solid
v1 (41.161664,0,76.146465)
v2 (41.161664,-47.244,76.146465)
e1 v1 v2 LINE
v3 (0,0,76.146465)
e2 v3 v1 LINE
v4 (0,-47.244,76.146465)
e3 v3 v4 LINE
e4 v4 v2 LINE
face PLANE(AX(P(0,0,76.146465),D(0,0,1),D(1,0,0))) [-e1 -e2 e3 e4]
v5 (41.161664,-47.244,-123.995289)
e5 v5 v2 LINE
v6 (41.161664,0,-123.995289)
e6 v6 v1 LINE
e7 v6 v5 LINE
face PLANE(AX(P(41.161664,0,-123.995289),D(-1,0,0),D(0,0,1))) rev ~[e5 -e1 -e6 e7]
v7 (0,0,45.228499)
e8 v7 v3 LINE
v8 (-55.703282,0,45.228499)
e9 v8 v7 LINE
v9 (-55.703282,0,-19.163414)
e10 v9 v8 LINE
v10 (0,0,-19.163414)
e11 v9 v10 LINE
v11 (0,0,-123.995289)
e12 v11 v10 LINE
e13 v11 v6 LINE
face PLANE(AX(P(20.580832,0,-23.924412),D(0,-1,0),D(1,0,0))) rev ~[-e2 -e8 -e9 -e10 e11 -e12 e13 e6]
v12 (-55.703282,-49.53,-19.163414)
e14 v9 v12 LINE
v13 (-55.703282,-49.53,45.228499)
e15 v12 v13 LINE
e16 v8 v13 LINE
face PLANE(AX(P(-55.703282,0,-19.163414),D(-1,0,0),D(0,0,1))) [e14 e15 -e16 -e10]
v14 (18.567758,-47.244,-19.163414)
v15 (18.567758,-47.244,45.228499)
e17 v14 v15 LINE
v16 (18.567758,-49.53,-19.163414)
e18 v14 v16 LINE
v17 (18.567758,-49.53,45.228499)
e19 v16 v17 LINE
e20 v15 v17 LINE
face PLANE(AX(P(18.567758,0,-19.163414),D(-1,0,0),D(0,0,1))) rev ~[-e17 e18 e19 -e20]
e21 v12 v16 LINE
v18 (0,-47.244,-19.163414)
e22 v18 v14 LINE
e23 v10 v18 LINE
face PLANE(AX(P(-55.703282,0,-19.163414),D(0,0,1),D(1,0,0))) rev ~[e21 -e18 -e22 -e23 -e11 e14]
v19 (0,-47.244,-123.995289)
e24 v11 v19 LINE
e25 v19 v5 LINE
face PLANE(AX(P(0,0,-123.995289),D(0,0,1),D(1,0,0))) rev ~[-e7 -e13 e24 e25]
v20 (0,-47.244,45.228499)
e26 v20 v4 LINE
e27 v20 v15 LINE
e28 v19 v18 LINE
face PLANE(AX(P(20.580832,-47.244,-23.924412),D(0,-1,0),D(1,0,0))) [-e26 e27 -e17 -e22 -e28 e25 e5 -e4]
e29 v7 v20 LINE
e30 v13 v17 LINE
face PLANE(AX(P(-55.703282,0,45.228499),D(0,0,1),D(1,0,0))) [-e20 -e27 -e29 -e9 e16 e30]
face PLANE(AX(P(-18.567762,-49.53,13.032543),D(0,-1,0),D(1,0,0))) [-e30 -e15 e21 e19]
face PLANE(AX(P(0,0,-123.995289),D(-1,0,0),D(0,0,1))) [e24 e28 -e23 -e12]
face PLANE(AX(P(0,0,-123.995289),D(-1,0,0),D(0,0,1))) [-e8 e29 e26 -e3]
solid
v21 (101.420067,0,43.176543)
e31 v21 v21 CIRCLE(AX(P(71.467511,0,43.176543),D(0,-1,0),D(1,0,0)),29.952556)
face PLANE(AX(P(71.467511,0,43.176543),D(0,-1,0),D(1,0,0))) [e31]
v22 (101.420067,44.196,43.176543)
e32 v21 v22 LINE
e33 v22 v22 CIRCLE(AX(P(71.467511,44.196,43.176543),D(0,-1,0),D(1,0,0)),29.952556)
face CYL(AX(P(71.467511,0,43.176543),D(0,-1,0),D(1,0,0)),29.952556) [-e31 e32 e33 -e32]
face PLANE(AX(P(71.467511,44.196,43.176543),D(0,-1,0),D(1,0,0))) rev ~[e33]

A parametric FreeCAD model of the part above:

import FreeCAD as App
import Part
import Sketcher

V = App.Vector
Q = App.Units.Quantity

doc = App.newDocument("Part")
body = doc.addObject("PartDesign::Body", "Body")

sketch1 = body.newObject("Sketcher::SketchObject", "Sketch")
sketch1.AttachmentSupport = (doc.getObject("XZ_Plane"), [""])
sketch1.MapMode = "FlatFace"
sketch1.addGeometry(Part.LineSegment(V(-56, 45, 0), V(-56, -19, 0)), False)
sketch1.addGeometry(Part.LineSegment(V(-56, -19, 0), V(19, -19, 0)), False)
sketch1.addGeometry(Part.LineSegment(V(19, -19, 0), V(19, 45, 0)), False)
sketch1.addGeometry(Part.LineSegment(V(19, 45, 0), V(-56, 45, 0)), False)
sketch1.addConstraint(Sketcher.Constraint("Coincident", 0, 2, 1, 1))
sketch1.addConstraint(Sketcher.Constraint("Coincident", 1, 2, 2, 1))
sketch1.addConstraint(Sketcher.Constraint("Coincident", 2, 2, 3, 1))
sketch1.addConstraint(Sketcher.Constraint("Coincident", 3, 2, 0, 1))
sketch1.addConstraint(Sketcher.Constraint("Vertical", 0))
sketch1.addConstraint(Sketcher.Constraint("Horizontal", 1))
sketch1.addConstraint(Sketcher.Constraint("Vertical", 2))
sketch1.addConstraint(Sketcher.Constraint("Horizontal", 3))
sketch1.addConstraint(Sketcher.Constraint("DistanceX", 1, 1, 1, 2, Q("74.27104 mm")))
sketch1.addConstraint(Sketcher.Constraint("DistanceY", -1, 1, 2, 2, Q("45.228499 mm")))
sketch1.addConstraint(Sketcher.Constraint("DistanceY", 0, 2, 0, 1, Q("64.391913 mm")))
sketch1.addConstraint(Sketcher.Constraint("DistanceX", -1, 1, 1, 2, Q("18.567758 mm")))
pad1 = body.newObject("PartDesign::Pad", "Pad")
pad1.Profile = sketch1
pad1.Length = Q("1.95 in")

sketch2 = body.newObject("Sketcher::SketchObject", "Sketch001")
sketch2.AttachmentSupport = (doc.getObject("XZ_Plane"), [""])
sketch2.MapMode = "FlatFace"
sketch2.addGeometry(Part.LineSegment(V(0, 76, 0), V(0, -124, 0)), False)
sketch2.addGeometry(Part.LineSegment(V(0, -124, 0), V(41, -124, 0)), False)
sketch2.addGeometry(Part.LineSegment(V(41, -124, 0), V(41, 76, 0)), False)
sketch2.addGeometry(Part.LineSegment(V(41, 76, 0), V(0, 76, 0)), False)
sketch2.addConstraint(Sketcher.Constraint("Coincident", 0, 2, 1, 1))
sketch2.addConstraint(Sketcher.Constraint("Coincident", 1, 2, 2, 1))
sketch2.addConstraint(Sketcher.Constraint("Coincident", 2, 2, 3, 1))
sketch2.addConstraint(Sketcher.Constraint("Coincident", 3, 2, 0, 1))
sketch2.addConstraint(Sketcher.Constraint("Vertical", 0))
sketch2.addConstraint(Sketcher.Constraint("Horizontal", 1))
sketch2.addConstraint(Sketcher.Constraint("Vertical", 2))
sketch2.addConstraint(Sketcher.Constraint("Horizontal", 3))
sketch2.addConstraint(Sketcher.Constraint("PointOnObject", 0, 2, -2))
sketch2.addConstraint(Sketcher.Constraint("DistanceX", 1, 1, 1, 2, Q("41.161664 mm")))
sketch2.addConstraint(Sketcher.Constraint("DistanceY", 0, 2, 0, 1, Q("200.141754 mm")))
sketch2.addConstraint(Sketcher.Constraint("DistanceY", 0, 2, -1, 1, Q("123.995289 mm")))
pad2 = body.newObject("PartDesign::Pad", "Pad001")
pad2.Profile = sketch2
pad2.Length = Q("1.86 in")
body2 = doc.addObject("PartDesign::Body", "Body001")

sketch3 = body2.newObject("Sketcher::SketchObject", "Sketch002")
sketch3.AttachmentSupport = (doc.getObject("XZ_Plane001"), [""])
sketch3.MapMode = "FlatFace"
sketch3.addGeometry(Part.Circle(V(71, 43, 0), V(0, 0, 1), 30), False)
sketch3.addConstraint(Sketcher.Constraint("Diameter", 0, Q("59.905112 mm")))
sketch3.addConstraint(Sketcher.Constraint("DistanceX", -1, 1, 0, 3, Q("71.467511 mm")))
sketch3.addConstraint(Sketcher.Constraint("DistanceY", -1, 1, 0, 3, Q("43.176543 mm")))
pad3 = body2.newObject("PartDesign::Pad", "Pad002")
pad3.Profile = sketch3
pad3.Length = Q("1.74 in")
pad3.Reversed = True

doc.recompute()
